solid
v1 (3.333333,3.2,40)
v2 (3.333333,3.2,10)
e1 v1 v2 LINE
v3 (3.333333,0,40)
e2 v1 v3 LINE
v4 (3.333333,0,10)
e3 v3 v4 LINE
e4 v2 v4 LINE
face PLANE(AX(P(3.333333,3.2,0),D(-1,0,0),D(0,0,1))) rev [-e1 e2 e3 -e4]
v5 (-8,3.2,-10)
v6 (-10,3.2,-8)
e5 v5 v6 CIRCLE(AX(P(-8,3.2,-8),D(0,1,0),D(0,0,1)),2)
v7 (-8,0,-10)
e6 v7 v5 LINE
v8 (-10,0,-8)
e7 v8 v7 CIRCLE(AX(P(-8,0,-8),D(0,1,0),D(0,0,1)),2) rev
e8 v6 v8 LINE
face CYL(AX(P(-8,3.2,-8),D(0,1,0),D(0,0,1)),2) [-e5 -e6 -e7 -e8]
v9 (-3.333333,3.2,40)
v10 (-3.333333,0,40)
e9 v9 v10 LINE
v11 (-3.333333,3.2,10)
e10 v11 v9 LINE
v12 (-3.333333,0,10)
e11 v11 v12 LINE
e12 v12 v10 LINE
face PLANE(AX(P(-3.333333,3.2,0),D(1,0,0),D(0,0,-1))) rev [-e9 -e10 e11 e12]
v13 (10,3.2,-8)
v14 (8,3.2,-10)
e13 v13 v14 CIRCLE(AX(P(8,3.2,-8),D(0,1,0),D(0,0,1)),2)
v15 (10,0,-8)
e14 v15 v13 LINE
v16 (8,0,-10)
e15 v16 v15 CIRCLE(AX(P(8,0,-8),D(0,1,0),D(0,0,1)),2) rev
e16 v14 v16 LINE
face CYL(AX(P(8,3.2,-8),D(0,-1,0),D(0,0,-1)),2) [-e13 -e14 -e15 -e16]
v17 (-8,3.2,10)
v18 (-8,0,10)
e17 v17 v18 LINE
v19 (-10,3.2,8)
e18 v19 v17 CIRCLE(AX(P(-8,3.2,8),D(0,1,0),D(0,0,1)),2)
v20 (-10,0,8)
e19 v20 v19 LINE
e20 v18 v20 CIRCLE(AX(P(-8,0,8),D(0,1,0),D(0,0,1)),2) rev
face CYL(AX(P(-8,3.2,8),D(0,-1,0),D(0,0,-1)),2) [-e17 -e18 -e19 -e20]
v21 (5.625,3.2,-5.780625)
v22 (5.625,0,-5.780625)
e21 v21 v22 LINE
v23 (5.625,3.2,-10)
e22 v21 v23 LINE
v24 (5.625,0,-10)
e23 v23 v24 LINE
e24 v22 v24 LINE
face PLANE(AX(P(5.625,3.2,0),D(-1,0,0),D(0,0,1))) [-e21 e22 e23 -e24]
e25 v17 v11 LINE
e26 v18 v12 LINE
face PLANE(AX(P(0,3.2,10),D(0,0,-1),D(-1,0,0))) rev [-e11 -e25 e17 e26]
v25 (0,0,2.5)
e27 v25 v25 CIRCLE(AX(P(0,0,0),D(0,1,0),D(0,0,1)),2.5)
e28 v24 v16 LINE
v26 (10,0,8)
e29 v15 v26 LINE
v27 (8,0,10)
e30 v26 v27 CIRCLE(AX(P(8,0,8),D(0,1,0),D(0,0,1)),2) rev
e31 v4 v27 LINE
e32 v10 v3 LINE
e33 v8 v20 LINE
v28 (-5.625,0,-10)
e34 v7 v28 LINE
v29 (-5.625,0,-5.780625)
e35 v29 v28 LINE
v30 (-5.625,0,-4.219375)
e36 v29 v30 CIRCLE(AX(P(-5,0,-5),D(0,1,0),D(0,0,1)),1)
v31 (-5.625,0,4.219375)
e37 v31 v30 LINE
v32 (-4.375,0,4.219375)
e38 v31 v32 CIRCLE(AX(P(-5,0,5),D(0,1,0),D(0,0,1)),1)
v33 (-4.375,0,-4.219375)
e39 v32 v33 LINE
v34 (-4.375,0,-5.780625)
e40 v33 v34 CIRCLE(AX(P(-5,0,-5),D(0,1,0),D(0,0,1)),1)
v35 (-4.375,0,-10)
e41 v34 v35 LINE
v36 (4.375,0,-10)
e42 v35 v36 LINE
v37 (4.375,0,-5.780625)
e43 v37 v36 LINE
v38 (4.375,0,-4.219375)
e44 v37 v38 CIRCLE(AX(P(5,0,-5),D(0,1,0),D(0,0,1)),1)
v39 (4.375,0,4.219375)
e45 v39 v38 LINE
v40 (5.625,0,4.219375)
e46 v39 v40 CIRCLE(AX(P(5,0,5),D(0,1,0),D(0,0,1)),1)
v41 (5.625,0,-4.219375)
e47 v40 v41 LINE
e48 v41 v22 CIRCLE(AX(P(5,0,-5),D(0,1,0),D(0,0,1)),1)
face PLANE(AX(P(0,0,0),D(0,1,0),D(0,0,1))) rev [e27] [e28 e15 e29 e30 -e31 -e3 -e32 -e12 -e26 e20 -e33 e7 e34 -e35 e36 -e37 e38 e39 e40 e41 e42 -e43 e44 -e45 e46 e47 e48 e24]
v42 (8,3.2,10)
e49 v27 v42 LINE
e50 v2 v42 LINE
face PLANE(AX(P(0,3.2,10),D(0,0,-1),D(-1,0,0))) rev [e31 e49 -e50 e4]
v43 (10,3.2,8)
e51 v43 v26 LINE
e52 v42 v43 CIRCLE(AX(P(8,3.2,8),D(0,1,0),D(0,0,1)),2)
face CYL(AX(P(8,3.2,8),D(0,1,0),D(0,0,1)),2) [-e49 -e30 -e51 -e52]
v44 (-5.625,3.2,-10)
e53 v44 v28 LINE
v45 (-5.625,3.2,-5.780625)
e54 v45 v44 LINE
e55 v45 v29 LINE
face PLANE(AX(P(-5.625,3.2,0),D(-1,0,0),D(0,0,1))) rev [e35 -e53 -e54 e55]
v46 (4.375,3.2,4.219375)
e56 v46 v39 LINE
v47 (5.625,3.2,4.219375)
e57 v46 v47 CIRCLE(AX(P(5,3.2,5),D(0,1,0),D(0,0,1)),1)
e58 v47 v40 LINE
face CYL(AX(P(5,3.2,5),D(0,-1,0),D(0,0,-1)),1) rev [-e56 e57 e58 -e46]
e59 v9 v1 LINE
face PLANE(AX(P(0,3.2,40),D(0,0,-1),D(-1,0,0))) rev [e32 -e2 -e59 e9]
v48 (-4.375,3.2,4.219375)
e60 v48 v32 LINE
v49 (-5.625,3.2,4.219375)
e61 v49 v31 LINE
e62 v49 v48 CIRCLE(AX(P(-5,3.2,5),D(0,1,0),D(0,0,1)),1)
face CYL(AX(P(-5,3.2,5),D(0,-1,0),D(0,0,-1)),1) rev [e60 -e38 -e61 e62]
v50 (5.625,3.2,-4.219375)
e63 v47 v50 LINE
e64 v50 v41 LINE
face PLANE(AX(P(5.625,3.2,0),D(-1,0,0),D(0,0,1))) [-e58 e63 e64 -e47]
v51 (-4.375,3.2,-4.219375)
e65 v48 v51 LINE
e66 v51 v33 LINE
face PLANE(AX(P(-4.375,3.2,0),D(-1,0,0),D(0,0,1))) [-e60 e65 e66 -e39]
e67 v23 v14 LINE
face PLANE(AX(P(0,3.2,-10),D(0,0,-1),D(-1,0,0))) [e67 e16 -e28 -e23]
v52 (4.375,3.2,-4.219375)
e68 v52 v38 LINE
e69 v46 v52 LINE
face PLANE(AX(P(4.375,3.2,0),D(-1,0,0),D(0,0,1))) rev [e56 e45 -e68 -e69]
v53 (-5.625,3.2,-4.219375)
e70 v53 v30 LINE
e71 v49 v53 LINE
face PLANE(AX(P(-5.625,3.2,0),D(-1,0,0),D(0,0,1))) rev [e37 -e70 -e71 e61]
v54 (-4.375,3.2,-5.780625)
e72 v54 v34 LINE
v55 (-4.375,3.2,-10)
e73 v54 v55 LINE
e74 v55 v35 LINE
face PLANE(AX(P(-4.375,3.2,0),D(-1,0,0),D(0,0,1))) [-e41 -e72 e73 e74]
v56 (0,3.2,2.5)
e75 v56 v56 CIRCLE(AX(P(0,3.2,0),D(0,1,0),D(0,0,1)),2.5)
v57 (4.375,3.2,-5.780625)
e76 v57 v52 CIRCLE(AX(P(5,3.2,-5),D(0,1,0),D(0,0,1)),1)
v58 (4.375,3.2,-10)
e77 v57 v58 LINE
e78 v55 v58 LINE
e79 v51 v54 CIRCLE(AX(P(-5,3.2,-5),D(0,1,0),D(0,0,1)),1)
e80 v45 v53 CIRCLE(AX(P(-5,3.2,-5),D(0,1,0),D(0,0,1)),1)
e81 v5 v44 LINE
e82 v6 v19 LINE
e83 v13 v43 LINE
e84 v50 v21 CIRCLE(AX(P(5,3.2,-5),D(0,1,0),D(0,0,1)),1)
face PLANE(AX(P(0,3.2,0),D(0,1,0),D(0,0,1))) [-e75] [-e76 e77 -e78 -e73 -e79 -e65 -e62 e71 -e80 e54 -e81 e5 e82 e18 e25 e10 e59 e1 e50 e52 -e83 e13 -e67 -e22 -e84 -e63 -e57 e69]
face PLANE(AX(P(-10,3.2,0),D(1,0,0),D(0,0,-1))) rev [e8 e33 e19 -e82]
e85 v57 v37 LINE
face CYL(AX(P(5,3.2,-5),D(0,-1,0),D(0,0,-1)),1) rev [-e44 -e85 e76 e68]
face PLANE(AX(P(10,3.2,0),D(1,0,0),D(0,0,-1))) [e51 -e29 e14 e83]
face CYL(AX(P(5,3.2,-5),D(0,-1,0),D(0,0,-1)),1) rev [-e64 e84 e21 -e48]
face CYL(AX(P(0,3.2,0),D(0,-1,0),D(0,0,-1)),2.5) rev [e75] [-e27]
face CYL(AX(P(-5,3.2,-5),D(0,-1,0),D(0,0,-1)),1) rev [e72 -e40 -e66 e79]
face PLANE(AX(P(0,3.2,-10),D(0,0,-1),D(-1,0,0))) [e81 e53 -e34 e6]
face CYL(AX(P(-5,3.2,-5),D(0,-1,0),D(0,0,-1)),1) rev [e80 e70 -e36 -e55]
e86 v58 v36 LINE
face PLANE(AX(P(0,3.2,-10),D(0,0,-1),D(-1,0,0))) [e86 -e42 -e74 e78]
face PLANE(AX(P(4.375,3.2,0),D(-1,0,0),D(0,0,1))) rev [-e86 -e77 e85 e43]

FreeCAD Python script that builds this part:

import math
import FreeCAD as App
import Part
import Sketcher
Q = App.Units.Quantity


def edges_at(feature, points):
    """Names of the edges that pass closest to the given points."""
    edges = feature.Shape.Edges
    near = lambda p: min(range(len(edges)), key=lambda i: edges[i].distToShape(Part.Vertex(*p))[0])
    return sorted({f"Edge{near(p) + 1}" for p in points})

doc = App.newDocument("Part")
body = doc.addObject("PartDesign::Body", "Body")

sketch1 = body.newObject("Sketcher::SketchObject", "Sketch")
sketch1.AttachmentSupport = (doc.getObject("XZ_Plane"), [""])
sketch1.MapMode = "FlatFace"
sketch1.addGeometry(Part.LineSegment(App.Vector(-5.6, -10, 0), App.Vector(-10, -10, 0)), False)
sketch1.addGeometry(Part.LineSegment(App.Vector(-10, -10, 0), App.Vector(-10, 10, 0)), False)
sketch1.addGeometry(Part.LineSegment(App.Vector(-10, 10, 0), App.Vector(-3.3, 10, 0)), False)
sketch1.addGeometry(Part.LineSegment(App.Vector(-3.3, 10, 0), App.Vector(-3.3, 40, 0)), False)
sketch1.addGeometry(Part.LineSegment(App.Vector(-3.3, 40, 0), App.Vector(3.3, 40, 0)), False)
sketch1.addGeometry(Part.LineSegment(App.Vector(3.3, 40, 0), App.Vector(3.3, 10, 0)), False)
sketch1.addGeometry(Part.LineSegment(App.Vector(3.3, 10, 0), App.Vector(10, 10, 0)), False)
sketch1.addGeometry(Part.LineSegment(App.Vector(10, 10, 0), App.Vector(10, -10, 0)), False)
sketch1.addGeometry(Part.LineSegment(App.Vector(10, -10, 0), App.Vector(5.6, -10, 0)), False)
sketch1.addGeometry(Part.LineSegment(App.Vector(5.6, -10, 0), App.Vector(5.6, -5.8, 0)), False)
sketch1.addGeometry(Part.ArcOfCircle(Part.Circle(App.Vector(5, -5, 0), App.Vector(0, 0, 1), 1), math.radians(-51), math.radians(0)), False)
sketch1.addGeometry(Part.ArcOfCircle(Part.Circle(App.Vector(5, -5, 0), App.Vector(0, 0, 1), 1), math.radians(0), math.radians(51)), False)
sketch1.addGeometry(Part.LineSegment(App.Vector(5.6, -4.2, 0), App.Vector(5.6, 4.2, 0)), False)
sketch1.addGeometry(Part.ArcOfCircle(Part.Circle(App.Vector(5, 5, 0), App.Vector(0, 0, 1), 1), math.radians(-51), math.radians(0)), False)
sketch1.addGeometry(Part.ArcOfCircle(Part.Circle(App.Vector(5, 5, 0), App.Vector(0, 0, 1), 1), math.radians(0), math.radians(231)), False)
sketch1.addGeometry(Part.LineSegment(App.Vector(4.4, 4.2, 0), App.Vector(4.4, -4.2, 0)), False)
sketch1.addGeometry(Part.ArcOfCircle(Part.Circle(App.Vector(5, -5, 0), App.Vector(0, 0, 1), 1), math.radians(129), math.radians(231)), False)
sketch1.addGeometry(Part.LineSegment(App.Vector(4.4, -5.8, 0), App.Vector(4.4, -10, 0)), False)
sketch1.addGeometry(Part.LineSegment(App.Vector(4.4, -10, 0), App.Vector(-4.4, -10, 0)), False)
sketch1.addGeometry(Part.LineSegment(App.Vector(-4.4, -10, 0), App.Vector(-4.4, -5.8, 0)), False)
sketch1.addGeometry(Part.ArcOfCircle(Part.Circle(App.Vector(-5, -5, 0), App.Vector(0, 0, 1), 1), math.radians(-51), math.radians(0)), False)
sketch1.addGeometry(Part.ArcOfCircle(Part.Circle(App.Vector(-5, -5, 0), App.Vector(0, 0, 1), 1), math.radians(0), math.radians(51)), False)
sketch1.addGeometry(Part.LineSegment(App.Vector(-4.4, -4.2, 0), App.Vector(-4.4, 4.2, 0)), False)
sketch1.addGeometry(Part.ArcOfCircle(Part.Circle(App.Vector(-5, 5, 0), App.Vector(0, 0, 1), 1), math.radians(-51), math.radians(0)), False)
sketch1.addGeometry(Part.ArcOfCircle(Part.Circle(App.Vector(-5, 5, 0), App.Vector(0, 0, 1), 1), math.radians(0), math.radians(231)), False)
sketch1.addGeometry(Part.LineSegment(App.Vector(-5.6, 4.2, 0), App.Vector(-5.6, -4.2, 0)), False)
sketch1.addGeometry(Part.ArcOfCircle(Part.Circle(App.Vector(-5, -5, 0), App.Vector(0, 0, 1), 1), math.radians(129), math.radians(231)), False)
sketch1.addGeometry(Part.LineSegment(App.Vector(-5.6, -5.8, 0), App.Vector(-5.6, -10, 0)), False)
sketch1.addGeometry(Part.Circle(App.Vector(0, 0, 0), App.Vector(0, 0, 1), 2.5), False)
sketch1.addConstraint(Sketcher.Constraint("Coincident", 0, 2, 1, 1))
sketch1.addConstraint(Sketcher.Constraint("Coincident", 1, 2, 2, 1))
sketch1.addConstraint(Sketcher.Constraint("Coincident", 2, 2, 3, 1))
sketch1.addConstraint(Sketcher.Constraint("Coincident", 3, 2, 4, 1))
sketch1.addConstraint(Sketcher.Constraint("Coincident", 4, 2, 5, 1))
sketch1.addConstraint(Sketcher.Constraint("Coincident", 5, 2, 6, 1))
sketch1.addConstraint(Sketcher.Constraint("Coincident", 6, 2, 7, 1))
sketch1.addConstraint(Sketcher.Constraint("Coincident", 7, 2, 8, 1))
sketch1.addConstraint(Sketcher.Constraint("Coincident", 8, 2, 9, 1))
sketch1.addConstraint(Sketcher.Constraint("Coincident", 9, 2, 10, 1))
sketch1.addConstraint(Sketcher.Constraint("Tangent", 10, 2, 11, 1))
sketch1.addConstraint(Sketcher.Constraint("Coincident", 11, 2, 12, 1))
sketch1.addConstraint(Sketcher.Constraint("Coincident", 12, 2, 13, 1))
sketch1.addConstraint(Sketcher.Constraint("Tangent", 13, 2, 14, 1))
sketch1.addConstraint(Sketcher.Constraint("Coincident", 14, 2, 15, 1))
sketch1.addConstraint(Sketcher.Constraint("Coincident", 15, 2, 16, 1))
sketch1.addConstraint(Sketcher.Constraint("Coincident", 16, 2, 17, 1))
sketch1.addConstraint(Sketcher.Constraint("Coincident", 17, 2, 18, 1))
sketch1.addConstraint(Sketcher.Constraint("Coincident", 18, 2, 19, 1))
sketch1.addConstraint(Sketcher.Constraint("Coincident", 19, 2, 20, 1))
sketch1.addConstraint(Sketcher.Constraint("Tangent", 20, 2, 21, 1))
sketch1.addConstraint(Sketcher.Constraint("Coincident", 21, 2, 22, 1))
sketch1.addConstraint(Sketcher.Constraint("Coincident", 22, 2, 23, 1))
sketch1.addConstraint(Sketcher.Constraint("Tangent", 23, 2, 24, 1))
sketch1.addConstraint(Sketcher.Constraint("Coincident", 24, 2, 25, 1))
sketch1.addConstraint(Sketcher.Constraint("Coincident", 25, 2, 26, 1))
sketch1.addConstraint(Sketcher.Constraint("Coincident", 26, 2, 27, 1))
sketch1.addConstraint(Sketcher.Constraint("Coincident", 27, 2, 0, 1))
sketch1.addConstraint(Sketcher.Constraint("Horizontal", 0))
sketch1.addConstraint(Sketcher.Constraint("Vertical", 1))
sketch1.addConstraint(Sketcher.Constraint("Horizontal", 2))
sketch1.addConstraint(Sketcher.Constraint("Vertical", 3))
sketch1.addConstraint(Sketcher.Constraint("Horizontal", 4))
sketch1.addConstraint(Sketcher.Constraint("Vertical", 5))
sketch1.addConstraint(Sketcher.Constraint("Horizontal", 6))
sketch1.addConstraint(Sketcher.Constraint("Vertical", 7))
sketch1.addConstraint(Sketcher.Constraint("Horizontal", 8))
sketch1.addConstraint(Sketcher.Constraint("Vertical", 9))
sketch1.addConstraint(Sketcher.Constraint("Vertical", 12))
sketch1.addConstraint(Sketcher.Constraint("Vertical", 15))
sketch1.addConstraint(Sketcher.Constraint("Vertical", 17))
sketch1.addConstraint(Sketcher.Constraint("Horizontal", 18))
sketch1.addConstraint(Sketcher.Constraint("Vertical", 19))
sketch1.addConstraint(Sketcher.Constraint("Vertical", 22))
sketch1.addConstraint(Sketcher.Constraint("Vertical", 25))
sketch1.addConstraint(Sketcher.Constraint("Vertical", 27))
sketch1.addConstraint(Sketcher.Constraint("Coincident", 28, 3, -1, 1))
sketch1.addConstraint(Sketcher.Constraint("Coincident", 16, 3, 10, 3))
sketch1.addConstraint(Sketcher.Constraint("Coincident", 26, 3, 20, 3))
sketch1.addConstraint(Sketcher.Constraint("Equal", 10, 11))
sketch1.addConstraint(Sketcher.Constraint("Equal", 11, 13))
sketch1.addConstraint(Sketcher.Constraint("Equal", 13, 14))
sketch1.addConstraint(Sketcher.Constraint("Equal", 14, 16))
sketch1.addConstraint(Sketcher.Constraint("Equal", 16, 20))
sketch1.addConstraint(Sketcher.Constraint("Equal", 20, 21))
sketch1.addConstraint(Sketcher.Constraint("Equal", 21, 23))
sketch1.addConstraint(Sketcher.Constraint("Equal", 23, 24))
sketch1.addConstraint(Sketcher.Constraint("Equal", 24, 26))
sketch1.addConstraint(Sketcher.Constraint("Symmetric", 13, 3, 20, 3, -1, 1))
sketch1.addConstraint(Sketcher.Constraint("Symmetric", 10, 3, 23, 3, -1, 1))
sketch1.addConstraint(Sketcher.Constraint("Symmetric", 0, 2, 6, 2, -1, 1))
sketch1.addConstraint(Sketcher.Constraint("Symmetric", 10, 3, 20, 3, -2))
sketch1.addConstraint(Sketcher.Constraint("Symmetric", 2, 2, 5, 2, -2))
sketch1.addConstraint(Sketcher.Constraint("Symmetric", 8, 2, 27, 2, -2))
sketch1.addConstraint(Sketcher.Constraint("Horizontal", 26, 3, 10, 2))
sketch1.addConstraint(Sketcher.Constraint("Horizontal", 24, 3, 13, 2))
sketch1.addConstraint(Sketcher.Constraint("Horizontal", 12, 2, 14, 2))
sketch1.addConstraint(Sketcher.Constraint("Horizontal", 9, 2, 16, 2))
sketch1.addConstraint(Sketcher.Constraint("Horizontal", 8, 2, 17, 2))
sketch1.addConstraint(Sketcher.Constraint("Horizontal", 16, 2, 19, 2))
sketch1.addConstraint(Sketcher.Constraint("Horizontal", 10, 2, 20, 2))
sketch1.addConstraint(Sketcher.Constraint("Horizontal", 15, 2, 21, 2))
sketch1.addConstraint(Sketcher.Constraint("Horizontal", 13, 2, 23, 2))
sketch1.addConstraint(Sketcher.Constraint("Horizontal", 22, 2, 24, 2))
sketch1.addConstraint(Sketcher.Constraint("Vertical", 9, 2, 11, 2))
sketch1.addConstraint(Sketcher.Constraint("Equal", 2, 4))
sketch1.addConstraint(Sketcher.Constraint("Diameter", 28, Q("5 mm")))
sketch1.addConstraint(Sketcher.Constraint("Radius", 10, Q("1 mm")))
sketch1.addConstraint(Sketcher.Constraint("DistanceY", 1, 1, 1, 2, Q("20 mm")))
sketch1.addConstraint(Sketcher.Constraint("DistanceY", 3, 1, 3, 2, Q("30 mm")))
sketch1.addConstraint(Sketcher.Constraint("DistanceX", -1, 1, 10, 3, Q("5 mm")))
sketch1.addConstraint(Sketcher.Constraint("DistanceY", 10, 3, -1, 1, Q("5 mm")))
sketch1.addConstraint(Sketcher.Constraint("DistanceX", 0, 2, -1, 1, Q("10 mm")))
sketch1.addConstraint(Sketcher.Constraint("DistanceX", 18, 2, 18, 1, Q("8.75 mm")))
pad1 = body.newObject("PartDesign::Pad", "Pad")
pad1.Profile = sketch1
pad1.Length = 3.2
pad1.Reversed = True
doc.recompute()

fillet = body.newObject("PartDesign::Fillet", "Fillet")
fillet.Base = (pad1, edges_at(pad1, [
    (10, 1.6, -10),
    (10, 1.6, 10),
    (-10, 1.6, 10),
    (-10, 1.6, -10),
]))
fillet.Radius = 2

doc.recompute()
